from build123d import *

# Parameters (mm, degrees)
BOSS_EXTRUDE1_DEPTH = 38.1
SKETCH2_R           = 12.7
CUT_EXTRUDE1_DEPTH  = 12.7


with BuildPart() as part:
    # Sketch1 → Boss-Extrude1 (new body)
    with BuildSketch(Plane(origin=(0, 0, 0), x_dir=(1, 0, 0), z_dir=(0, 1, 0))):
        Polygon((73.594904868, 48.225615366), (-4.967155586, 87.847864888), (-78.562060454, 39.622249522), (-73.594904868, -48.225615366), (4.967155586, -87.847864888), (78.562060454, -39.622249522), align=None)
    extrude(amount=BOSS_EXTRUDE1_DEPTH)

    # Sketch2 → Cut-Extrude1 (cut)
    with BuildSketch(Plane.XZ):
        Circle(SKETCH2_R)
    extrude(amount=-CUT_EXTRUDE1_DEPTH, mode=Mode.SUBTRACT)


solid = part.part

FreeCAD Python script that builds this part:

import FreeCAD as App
import Part
import Sketcher

V = App.Vector
Q = App.Units.Quantity

doc = App.newDocument("Part")
body = doc.addObject("PartDesign::Body", "Body")

# Sketch on XZ plane
sketch1 = doc.addObject("Sketcher::SketchObject", "Sketch")
body.addObject(sketch1)
sketch1.AttachmentSupport = (doc.XZ_Plane, [""])
sketch1.MapMode = "FlatFace"
sketch1.addGeometry([
    Part.LineSegment(V(74, -48, 0), V(-5, -88, 0)),  # 0
    Part.LineSegment(V(-5, -88, 0), V(-79, -40, 0)),  # 1
    Part.LineSegment(V(-79, -40, 0), V(-74, 48, 0)),  # 2
    Part.LineSegment(V(-74, 48, 0), V(5, 88, 0)),  # 3
    Part.LineSegment(V(5, 88, 0), V(79, 40, 0)),  # 4
    Part.LineSegment(V(79, 40, 0), V(74, -48, 0)),  # 5
], False)
sketch1.addConstraint([
    Sketcher.Constraint("Coincident", 0, 2, 1, 1),
    Sketcher.Constraint("Coincident", 1, 2, 2, 1),
    Sketcher.Constraint("Coincident", 2, 2, 3, 1),
    Sketcher.Constraint("Coincident", 3, 2, 4, 1),
    Sketcher.Constraint("Coincident", 4, 2, 5, 1),
    Sketcher.Constraint("Coincident", 5, 2, 0, 1),
    Sketcher.Constraint("Symmetric", 0, 2, 3, 2, -1, 1),
    Sketcher.Constraint("Symmetric", 1, 2, 4, 2, -1, 1),
    Sketcher.Constraint("Symmetric", 2, 2, 5, 2, -1, 1),
    Sketcher.Constraint("Equal", 0, 1),
    Sketcher.Constraint("Equal", 1, 2),
    Sketcher.Constraint("DistanceY", 1, 2, 4, 2, Q("79.244499 mm")),
    Sketcher.Constraint("Distance", 0, Q("87.988181 mm")),
    Sketcher.Constraint("DistanceX", 1, 2, -1, 1, Q("78.56206 mm")),
    Sketcher.Constraint("DistanceX", 2, 2, 0, 2, Q("68.627749 mm")),
])
pad1 = doc.addObject("PartDesign::Pad", "Pad")
body.addObject(pad1)
pad1.Profile = sketch1
pad1.Length = Q("1.5 in")
pad1.Reversed = True

# Sketch on XZ plane
sketch2 = doc.addObject("Sketcher::SketchObject", "Sketch001")
body.addObject(sketch2)
sketch2.AttachmentSupport = (doc.XZ_Plane, [""])
sketch2.MapMode = "FlatFace"
sketch2.addGeometry(Part.Circle(V(0, 0, 0), V(0, 0, 1), 13), False)
sketch2.addConstraint([
    Sketcher.Constraint("Coincident", 0, 3, -1, 1),
    Sketcher.Constraint("Diameter", 0, Q("1 in")),
])
pocket1 = doc.addObject("PartDesign::Pocket", "Pocket")
body.addObject(pocket1)
pocket1.Profile = sketch2
pocket1.Length = Q("0.5 in")

doc.recompute()
